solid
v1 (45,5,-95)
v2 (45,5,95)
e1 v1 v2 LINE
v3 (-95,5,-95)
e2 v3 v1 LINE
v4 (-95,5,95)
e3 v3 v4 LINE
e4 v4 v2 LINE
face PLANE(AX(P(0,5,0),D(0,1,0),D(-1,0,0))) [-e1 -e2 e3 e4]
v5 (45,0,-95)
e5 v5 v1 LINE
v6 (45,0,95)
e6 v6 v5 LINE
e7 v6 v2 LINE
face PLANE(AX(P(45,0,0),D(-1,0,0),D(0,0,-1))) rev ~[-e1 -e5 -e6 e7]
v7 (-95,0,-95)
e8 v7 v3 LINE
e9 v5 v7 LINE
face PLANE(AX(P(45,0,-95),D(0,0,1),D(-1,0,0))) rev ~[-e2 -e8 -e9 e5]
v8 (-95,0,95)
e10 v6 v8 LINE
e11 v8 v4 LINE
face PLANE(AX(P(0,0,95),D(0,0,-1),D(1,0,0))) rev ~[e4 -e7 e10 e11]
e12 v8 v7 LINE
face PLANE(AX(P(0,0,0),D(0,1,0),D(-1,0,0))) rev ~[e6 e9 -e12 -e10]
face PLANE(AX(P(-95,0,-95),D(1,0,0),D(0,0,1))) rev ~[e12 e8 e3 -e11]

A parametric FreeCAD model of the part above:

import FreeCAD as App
import Part
import Sketcher
from FreeCAD import Vector
Q = App.Units.Quantity

doc = App.newDocument("Part")
params = doc.addObject("Spreadsheet::Sheet", "Params")
for row, (alias, value) in enumerate([
    ("sketch1_width", "140 mm"),
    ("sketch1_height", "190 mm"),
    ("pad1_length", "5 mm"),
], start=1):
    params.set(f"A{row}", alias)
    params.set(f"B{row}", "=" + value)
    params.setAlias(f"B{row}", alias)

body = doc.addObject("PartDesign::Body", "Body")

sketch1 = doc.addObject("Sketcher::SketchObject", "Sketch")
body.addObject(sketch1)
sketch1.AttachmentSupport = (doc.XZ_Plane, [""])
sketch1.MapMode = "FlatFace"
sketch1.addGeometry([
    Part.LineSegment(Vector(45, -95, 0), Vector(-95, -95, 0)),
    Part.LineSegment(Vector(-95, -95, 0), Vector(-95, 95, 0)),
    Part.LineSegment(Vector(-95, 95, 0), Vector(45, 95, 0)),
    Part.LineSegment(Vector(45, 95, 0), Vector(45, -95, 0)),
], False)
sketch1.addConstraint([
    Sketcher.Constraint("Coincident", 0, 2, 1, 1),
    Sketcher.Constraint("Coincident", 1, 2, 2, 1),
    Sketcher.Constraint("Coincident", 2, 2, 3, 1),
    Sketcher.Constraint("Coincident", 3, 2, 0, 1),
    Sketcher.Constraint("Horizontal", 0),
    Sketcher.Constraint("Vertical", 1),
    Sketcher.Constraint("Horizontal", 2),
    Sketcher.Constraint("Vertical", 3),
    Sketcher.Constraint("DistanceX", 0, 2, 0, 1, Q("140 mm")),
    Sketcher.Constraint("DistanceY", 1, 1, 1, 2, Q("190 mm")),
    Sketcher.Constraint("DistanceX", 0, 2, -1, 1, Q("95 mm")),
    Sketcher.Constraint("DistanceY", 0, 2, -1, 1, Q("95 mm")),
])
sketch1.setExpression("Constraints[8]", "Params.sketch1_width")
sketch1.setExpression("Constraints[9]", "Params.sketch1_height")
pad1 = doc.addObject("PartDesign::Pad", "Pad")
body.addObject(pad1)
pad1.Profile = sketch1
pad1.setExpression("Length", "Params.pad1_length")
pad1.Reversed = True

doc.recompute()
